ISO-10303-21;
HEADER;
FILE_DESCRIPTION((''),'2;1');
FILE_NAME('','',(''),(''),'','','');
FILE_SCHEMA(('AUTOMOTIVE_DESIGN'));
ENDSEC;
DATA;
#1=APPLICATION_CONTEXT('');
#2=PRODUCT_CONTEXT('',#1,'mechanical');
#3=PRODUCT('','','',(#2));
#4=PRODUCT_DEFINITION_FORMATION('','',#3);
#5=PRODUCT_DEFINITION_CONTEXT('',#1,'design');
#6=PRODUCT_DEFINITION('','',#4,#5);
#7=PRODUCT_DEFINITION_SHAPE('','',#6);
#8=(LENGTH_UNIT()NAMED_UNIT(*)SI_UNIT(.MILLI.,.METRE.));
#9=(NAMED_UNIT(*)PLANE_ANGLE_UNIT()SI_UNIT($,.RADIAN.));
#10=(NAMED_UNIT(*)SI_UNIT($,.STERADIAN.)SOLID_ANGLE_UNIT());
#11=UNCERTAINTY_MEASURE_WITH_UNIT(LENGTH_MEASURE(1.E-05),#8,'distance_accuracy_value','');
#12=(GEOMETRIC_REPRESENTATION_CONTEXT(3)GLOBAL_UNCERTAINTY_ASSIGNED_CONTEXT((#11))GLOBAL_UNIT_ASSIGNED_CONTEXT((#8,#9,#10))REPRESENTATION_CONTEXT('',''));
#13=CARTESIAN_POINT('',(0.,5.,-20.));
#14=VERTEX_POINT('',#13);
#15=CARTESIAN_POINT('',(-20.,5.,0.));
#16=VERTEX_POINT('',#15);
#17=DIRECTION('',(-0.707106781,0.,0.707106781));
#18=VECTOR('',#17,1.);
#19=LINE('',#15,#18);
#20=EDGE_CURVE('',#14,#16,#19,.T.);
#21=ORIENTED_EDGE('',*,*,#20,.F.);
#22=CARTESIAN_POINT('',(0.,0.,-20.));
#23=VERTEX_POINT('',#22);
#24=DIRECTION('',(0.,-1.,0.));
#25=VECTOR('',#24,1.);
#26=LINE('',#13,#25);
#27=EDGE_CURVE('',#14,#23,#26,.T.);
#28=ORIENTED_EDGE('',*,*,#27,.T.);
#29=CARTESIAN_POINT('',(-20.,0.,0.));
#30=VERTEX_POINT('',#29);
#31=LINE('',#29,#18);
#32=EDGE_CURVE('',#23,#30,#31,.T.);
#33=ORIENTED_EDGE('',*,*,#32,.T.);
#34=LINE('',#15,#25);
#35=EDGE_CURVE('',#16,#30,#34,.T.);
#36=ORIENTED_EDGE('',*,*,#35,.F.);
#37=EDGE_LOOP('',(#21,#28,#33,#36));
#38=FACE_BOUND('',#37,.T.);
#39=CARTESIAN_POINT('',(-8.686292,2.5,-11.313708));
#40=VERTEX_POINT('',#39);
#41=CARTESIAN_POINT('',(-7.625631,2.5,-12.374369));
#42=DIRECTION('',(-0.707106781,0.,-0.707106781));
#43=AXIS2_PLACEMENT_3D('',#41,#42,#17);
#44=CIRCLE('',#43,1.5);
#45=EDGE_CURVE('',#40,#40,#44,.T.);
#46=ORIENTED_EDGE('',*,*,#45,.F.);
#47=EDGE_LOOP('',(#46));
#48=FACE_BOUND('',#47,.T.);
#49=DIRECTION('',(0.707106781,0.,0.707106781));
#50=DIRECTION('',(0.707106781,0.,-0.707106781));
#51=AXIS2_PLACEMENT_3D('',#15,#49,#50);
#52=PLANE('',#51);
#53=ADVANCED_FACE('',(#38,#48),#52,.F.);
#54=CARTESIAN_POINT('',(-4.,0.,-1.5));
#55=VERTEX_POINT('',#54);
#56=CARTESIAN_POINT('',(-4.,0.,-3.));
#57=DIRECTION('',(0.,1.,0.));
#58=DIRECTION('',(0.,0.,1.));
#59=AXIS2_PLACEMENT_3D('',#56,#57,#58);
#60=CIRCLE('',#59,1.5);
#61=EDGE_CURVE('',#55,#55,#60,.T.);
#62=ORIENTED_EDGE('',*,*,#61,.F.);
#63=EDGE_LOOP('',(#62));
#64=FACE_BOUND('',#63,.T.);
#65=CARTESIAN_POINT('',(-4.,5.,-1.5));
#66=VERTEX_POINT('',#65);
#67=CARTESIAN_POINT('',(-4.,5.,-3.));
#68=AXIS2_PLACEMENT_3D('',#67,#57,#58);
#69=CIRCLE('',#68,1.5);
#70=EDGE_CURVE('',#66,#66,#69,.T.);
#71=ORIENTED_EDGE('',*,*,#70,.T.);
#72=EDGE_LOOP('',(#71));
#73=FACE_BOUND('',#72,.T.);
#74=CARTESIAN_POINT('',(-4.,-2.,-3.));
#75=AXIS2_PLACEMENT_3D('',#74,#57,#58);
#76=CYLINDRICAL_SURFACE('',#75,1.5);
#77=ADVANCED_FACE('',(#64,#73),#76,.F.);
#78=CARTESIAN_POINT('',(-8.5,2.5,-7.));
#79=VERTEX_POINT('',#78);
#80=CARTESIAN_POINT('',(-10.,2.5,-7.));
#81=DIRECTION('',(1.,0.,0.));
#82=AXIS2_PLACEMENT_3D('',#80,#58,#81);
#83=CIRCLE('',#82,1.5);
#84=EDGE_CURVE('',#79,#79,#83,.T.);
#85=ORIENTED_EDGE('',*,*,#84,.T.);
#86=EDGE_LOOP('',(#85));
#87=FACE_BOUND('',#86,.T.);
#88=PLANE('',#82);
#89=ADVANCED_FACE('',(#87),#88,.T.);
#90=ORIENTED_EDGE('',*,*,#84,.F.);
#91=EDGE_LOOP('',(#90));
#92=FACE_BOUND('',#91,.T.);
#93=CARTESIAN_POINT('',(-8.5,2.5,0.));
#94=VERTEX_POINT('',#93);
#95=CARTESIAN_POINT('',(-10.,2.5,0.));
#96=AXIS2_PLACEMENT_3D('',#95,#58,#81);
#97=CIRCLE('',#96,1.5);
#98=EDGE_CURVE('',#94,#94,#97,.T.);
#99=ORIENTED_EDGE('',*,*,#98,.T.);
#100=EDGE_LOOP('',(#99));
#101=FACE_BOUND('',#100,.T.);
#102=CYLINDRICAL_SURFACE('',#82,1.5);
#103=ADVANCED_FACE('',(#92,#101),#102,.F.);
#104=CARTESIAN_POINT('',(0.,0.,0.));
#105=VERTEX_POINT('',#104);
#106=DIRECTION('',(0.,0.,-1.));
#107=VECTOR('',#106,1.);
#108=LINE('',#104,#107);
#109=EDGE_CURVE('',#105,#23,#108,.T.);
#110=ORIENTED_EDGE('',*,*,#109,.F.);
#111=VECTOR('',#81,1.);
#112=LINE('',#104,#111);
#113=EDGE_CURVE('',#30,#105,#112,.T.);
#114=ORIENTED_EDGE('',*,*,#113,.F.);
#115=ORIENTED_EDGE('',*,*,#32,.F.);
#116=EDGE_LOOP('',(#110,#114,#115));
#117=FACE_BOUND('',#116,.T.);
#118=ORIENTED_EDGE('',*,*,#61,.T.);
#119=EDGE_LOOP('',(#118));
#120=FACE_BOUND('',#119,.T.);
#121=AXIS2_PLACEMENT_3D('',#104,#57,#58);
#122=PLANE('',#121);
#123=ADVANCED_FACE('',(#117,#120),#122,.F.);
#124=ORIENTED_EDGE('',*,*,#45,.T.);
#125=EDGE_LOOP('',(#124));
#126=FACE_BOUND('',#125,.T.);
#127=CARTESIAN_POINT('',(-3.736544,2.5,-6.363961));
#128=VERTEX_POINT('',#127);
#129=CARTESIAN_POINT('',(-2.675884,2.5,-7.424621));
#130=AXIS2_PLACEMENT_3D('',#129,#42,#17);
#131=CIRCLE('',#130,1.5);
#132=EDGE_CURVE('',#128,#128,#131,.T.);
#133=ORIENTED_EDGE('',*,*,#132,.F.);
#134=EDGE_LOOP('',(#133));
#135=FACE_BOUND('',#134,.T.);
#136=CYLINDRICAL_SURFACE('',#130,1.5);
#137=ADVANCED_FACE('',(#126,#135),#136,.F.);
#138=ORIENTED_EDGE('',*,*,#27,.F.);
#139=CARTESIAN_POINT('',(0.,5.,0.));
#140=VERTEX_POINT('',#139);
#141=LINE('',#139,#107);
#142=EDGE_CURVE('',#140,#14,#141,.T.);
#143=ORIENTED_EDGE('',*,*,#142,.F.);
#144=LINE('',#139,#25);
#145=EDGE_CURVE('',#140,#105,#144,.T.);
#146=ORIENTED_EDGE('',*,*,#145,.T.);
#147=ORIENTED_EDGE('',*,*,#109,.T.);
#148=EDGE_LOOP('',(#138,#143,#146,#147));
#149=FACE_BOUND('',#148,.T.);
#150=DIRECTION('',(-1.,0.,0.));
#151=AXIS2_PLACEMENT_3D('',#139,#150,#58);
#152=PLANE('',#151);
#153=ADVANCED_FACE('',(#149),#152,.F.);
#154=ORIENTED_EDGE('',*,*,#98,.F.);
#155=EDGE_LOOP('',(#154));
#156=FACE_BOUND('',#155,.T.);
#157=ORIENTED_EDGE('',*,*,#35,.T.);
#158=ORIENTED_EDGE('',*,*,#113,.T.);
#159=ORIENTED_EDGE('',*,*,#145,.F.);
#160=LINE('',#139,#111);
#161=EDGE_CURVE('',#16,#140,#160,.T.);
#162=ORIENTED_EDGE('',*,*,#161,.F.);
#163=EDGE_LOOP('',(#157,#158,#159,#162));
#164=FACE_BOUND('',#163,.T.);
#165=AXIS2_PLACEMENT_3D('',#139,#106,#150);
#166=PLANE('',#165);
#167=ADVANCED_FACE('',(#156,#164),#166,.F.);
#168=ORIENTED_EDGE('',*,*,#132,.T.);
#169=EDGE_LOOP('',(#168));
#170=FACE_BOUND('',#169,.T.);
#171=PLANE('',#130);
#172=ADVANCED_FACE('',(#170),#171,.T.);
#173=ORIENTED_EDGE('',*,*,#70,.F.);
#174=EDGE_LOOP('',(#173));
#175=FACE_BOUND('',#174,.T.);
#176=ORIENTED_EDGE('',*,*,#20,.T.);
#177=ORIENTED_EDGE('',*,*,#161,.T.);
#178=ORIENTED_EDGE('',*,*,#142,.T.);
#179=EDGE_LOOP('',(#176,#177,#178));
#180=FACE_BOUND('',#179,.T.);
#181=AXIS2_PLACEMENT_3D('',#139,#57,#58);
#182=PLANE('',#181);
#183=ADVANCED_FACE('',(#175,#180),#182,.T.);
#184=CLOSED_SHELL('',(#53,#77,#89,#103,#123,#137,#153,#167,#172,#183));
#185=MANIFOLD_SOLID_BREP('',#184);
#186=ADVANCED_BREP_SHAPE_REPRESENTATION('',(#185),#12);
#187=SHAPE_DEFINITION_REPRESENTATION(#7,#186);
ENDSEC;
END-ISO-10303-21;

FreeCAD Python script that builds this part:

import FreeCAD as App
import Part
import Sketcher
from FreeCAD import Vector
Q = App.Units.Quantity

doc = App.newDocument("Part")
params = doc.addObject("Spreadsheet::Sheet", "Params")
for row, (alias, value) in enumerate([
    ("sketch1_width", "20 mm"),
    ("pad1_length", "5 mm"),
    ("sketch2_diameter", "3 mm"),
    ("pocket1_length", "7 mm"),
    ("sketch3_diameter", "3 mm"),
    ("pocket2_length", "7 mm"),
    ("sketch4_diameter", "3 mm"),
    ("pocket3_length", "7 mm"),
], start=1):
    params.set(f"A{row}", alias)
    params.set(f"B{row}", "=" + value)
    params.setAlias(f"B{row}", alias)

body = doc.addObject("PartDesign::Body", "Body")

# Sketch on XZ plane
sketch1 = body.newObject("Sketcher::SketchObject", "Sketch")
sketch1.AttachmentSupport = (doc.getObject("XZ_Plane"), [""])
sketch1.MapMode = "FlatFace"
sketch1.addGeometry(Part.LineSegment(Vector(-20, 0, 0), Vector(0, 0, 0)), False)
sketch1.addGeometry(Part.LineSegment(Vector(0, 0, 0), Vector(0, -20, 0)), False)
sketch1.addGeometry(Part.LineSegment(Vector(0, -20, 0), Vector(-20, 0, 0)), False)
sketch1.addConstraint(Sketcher.Constraint("Coincident", 0, 2, 1, 1))
sketch1.addConstraint(Sketcher.Constraint("Coincident", 1, 2, 2, 1))
sketch1.addConstraint(Sketcher.Constraint("Coincident", 2, 2, 0, 1))
sketch1.addConstraint(Sketcher.Constraint("Horizontal", 0))
sketch1.addConstraint(Sketcher.Constraint("Vertical", 1))
sketch1.addConstraint(Sketcher.Constraint("Coincident", 0, 2, -1, 1))
sketch1.addConstraint(Sketcher.Constraint("Equal", 0, 1))
sketch1.addConstraint(Sketcher.Constraint("DistanceX", 0, 1, 0, 2, Q("20 mm")))
sketch1.setExpression("Constraints[7]", "Params.sketch1_width")
pad1 = body.newObject("PartDesign::Pad", "Pad")
pad1.Profile = sketch1
pad1.setExpression("Length", "Params.pad1_length")
pad1.Reversed = True

# Sketch on XY plane
sketch2 = body.newObject("Sketcher::SketchObject", "Sketch001")
sketch2.AttachmentSupport = (doc.getObject("XY_Plane"), [""])
sketch2.MapMode = "FlatFace"
sketch2.addGeometry(Part.Circle(Vector(-10, 2.5, 0), Vector(0, 0, 1), 1.5), False)
sketch2.addConstraint(Sketcher.Constraint("Diameter", 0, Q("3 mm")))
sketch2.addConstraint(Sketcher.Constraint("DistanceX", 0, 3, -1, 1, Q("10 mm")))
sketch2.addConstraint(Sketcher.Constraint("DistanceY", -1, 1, 0, 3, Q("2.5 mm")))
sketch2.setExpression("Constraints[0]", "Params.sketch2_diameter")
pocket1 = body.newObject("PartDesign::Pocket", "Pocket")
pocket1.Profile = sketch2
pocket1.setExpression("Length", "Params.pocket1_length")

# Sketch on an angled plane
sketch3 = body.newObject("Sketcher::SketchObject", "Sketch002")
sketch3.Placement = App.Placement(Vector(-10, 0, -10), App.Rotation(Vector(-0.707106781, 0, 0.707106781), Vector(0, 0.999999999, 0), Vector(-0.707106781, 0, -0.707106781), "ZXY"))
sketch3.addGeometry(Part.Circle(Vector(-3.4, 2.5, 0), Vector(0, 0, 1), 1.5), False)
sketch3.addConstraint(Sketcher.Constraint("Diameter", 0, Q("3 mm")))
sketch3.addConstraint(Sketcher.Constraint("DistanceY", -1, 1, 0, 3, Q("2.5 mm")))
sketch3.addConstraint(Sketcher.Constraint("DistanceX", 0, 3, -1, 1, Q("3.357864 mm")))
sketch3.setExpression("Constraints[0]", "Params.sketch3_diameter")
pocket2 = body.newObject("PartDesign::Pocket", "Pocket001")
pocket2.Profile = sketch3
pocket2.setExpression("Length", "Params.pocket2_length")

# Sketch on XZ plane
sketch4 = body.newObject("Sketcher::SketchObject", "Sketch003")
sketch4.AttachmentSupport = (doc.getObject("XZ_Plane"), [""])
sketch4.MapMode = "FlatFace"
sketch4.AttachmentOffset = App.Placement(Vector(0, 0, -5), App.Rotation())
sketch4.addGeometry(Part.Circle(Vector(-4, -3, 0), Vector(0, 0, 1), 1.5), False)
sketch4.addConstraint(Sketcher.Constraint("Diameter", 0, Q("3 mm")))
sketch4.addConstraint(Sketcher.Constraint("DistanceX", 0, 3, -1, 1, Q("4 mm")))
sketch4.addConstraint(Sketcher.Constraint("DistanceY", 0, 3, -1, 1, Q("3 mm")))
sketch4.setExpression("Constraints[0]", "Params.sketch4_diameter")
pocket3 = body.newObject("PartDesign::Pocket", "Pocket002")
pocket3.Profile = sketch4
pocket3.setExpression("Length", "Params.pocket3_length")
pocket3.Reversed = True

doc.recompute()
